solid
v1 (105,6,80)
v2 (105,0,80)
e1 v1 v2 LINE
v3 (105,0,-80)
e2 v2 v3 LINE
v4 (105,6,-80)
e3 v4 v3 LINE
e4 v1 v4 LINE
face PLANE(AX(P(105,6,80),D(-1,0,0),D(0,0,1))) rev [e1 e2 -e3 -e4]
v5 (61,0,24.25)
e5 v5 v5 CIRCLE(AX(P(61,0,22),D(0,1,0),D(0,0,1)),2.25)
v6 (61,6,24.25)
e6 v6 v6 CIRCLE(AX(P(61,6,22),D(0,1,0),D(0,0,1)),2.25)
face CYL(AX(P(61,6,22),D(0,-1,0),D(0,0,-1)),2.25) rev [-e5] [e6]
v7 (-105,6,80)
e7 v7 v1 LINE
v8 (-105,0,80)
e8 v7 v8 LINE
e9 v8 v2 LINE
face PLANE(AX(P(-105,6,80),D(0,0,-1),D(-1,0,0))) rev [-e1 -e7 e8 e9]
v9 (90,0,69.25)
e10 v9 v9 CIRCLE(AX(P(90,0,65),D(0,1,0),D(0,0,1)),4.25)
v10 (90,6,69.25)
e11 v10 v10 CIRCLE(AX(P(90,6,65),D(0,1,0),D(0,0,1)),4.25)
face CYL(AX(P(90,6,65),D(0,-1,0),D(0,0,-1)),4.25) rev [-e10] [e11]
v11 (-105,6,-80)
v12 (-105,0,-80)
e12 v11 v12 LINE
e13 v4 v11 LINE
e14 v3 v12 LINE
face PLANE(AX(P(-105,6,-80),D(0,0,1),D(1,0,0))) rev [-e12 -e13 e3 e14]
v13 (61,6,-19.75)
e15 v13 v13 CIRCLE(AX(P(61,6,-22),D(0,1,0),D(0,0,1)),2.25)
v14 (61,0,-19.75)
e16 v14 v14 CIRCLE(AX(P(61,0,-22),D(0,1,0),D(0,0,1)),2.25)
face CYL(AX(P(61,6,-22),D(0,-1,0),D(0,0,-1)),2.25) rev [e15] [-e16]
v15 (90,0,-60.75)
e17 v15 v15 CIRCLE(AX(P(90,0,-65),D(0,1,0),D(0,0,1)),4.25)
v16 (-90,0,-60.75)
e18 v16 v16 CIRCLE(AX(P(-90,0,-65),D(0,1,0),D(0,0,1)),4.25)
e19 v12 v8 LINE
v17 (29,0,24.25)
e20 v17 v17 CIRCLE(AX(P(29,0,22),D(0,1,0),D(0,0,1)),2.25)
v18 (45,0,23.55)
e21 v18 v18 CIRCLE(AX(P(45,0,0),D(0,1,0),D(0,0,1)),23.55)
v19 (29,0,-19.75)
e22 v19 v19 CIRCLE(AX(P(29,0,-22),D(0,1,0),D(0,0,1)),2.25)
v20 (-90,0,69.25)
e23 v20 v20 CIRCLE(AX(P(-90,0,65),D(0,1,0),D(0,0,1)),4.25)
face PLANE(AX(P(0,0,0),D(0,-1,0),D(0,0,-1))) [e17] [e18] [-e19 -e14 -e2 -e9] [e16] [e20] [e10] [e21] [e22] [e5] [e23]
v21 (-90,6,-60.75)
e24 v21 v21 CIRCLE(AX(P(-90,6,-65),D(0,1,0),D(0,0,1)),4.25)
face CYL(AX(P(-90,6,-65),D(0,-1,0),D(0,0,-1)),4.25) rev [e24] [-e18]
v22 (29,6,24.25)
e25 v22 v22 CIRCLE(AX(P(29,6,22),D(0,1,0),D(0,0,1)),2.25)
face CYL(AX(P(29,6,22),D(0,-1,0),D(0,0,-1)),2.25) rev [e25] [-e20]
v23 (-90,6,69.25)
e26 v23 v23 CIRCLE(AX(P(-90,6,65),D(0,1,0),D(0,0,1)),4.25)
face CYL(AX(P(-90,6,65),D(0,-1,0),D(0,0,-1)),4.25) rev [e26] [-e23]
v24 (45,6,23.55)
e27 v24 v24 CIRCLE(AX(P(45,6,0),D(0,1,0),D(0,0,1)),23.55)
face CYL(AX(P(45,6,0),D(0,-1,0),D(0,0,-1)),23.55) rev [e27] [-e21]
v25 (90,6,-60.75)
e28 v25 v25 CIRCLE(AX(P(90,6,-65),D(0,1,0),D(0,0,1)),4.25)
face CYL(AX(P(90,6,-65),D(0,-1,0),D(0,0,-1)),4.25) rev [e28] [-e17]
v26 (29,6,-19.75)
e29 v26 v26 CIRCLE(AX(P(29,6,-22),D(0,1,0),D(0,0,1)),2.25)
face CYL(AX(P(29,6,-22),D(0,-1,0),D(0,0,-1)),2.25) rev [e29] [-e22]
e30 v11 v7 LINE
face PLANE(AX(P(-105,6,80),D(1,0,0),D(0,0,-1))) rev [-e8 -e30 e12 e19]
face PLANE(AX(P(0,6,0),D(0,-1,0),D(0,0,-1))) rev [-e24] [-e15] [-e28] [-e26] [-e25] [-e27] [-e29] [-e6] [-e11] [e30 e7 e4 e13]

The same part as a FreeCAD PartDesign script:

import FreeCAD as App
import Part
import Sketcher

V = App.Vector


def add_polygon(sketch, points):
    """Adds a closed chain of lines whose ends are joined by coincident constraints."""
    first, n = sketch.GeometryCount, len(points)
    for a, b in zip(points, points[1:] + points[:1]):
        sketch.addGeometry(Part.LineSegment(App.Vector(*a, 0), App.Vector(*b, 0)), False)
    for i in range(n):
        sketch.addConstraint(Sketcher.Constraint("Coincident", first + i, 2, first + (i + 1) % n, 1))

doc = App.newDocument("Part")
body = doc.addObject("PartDesign::Body", "Body")

sketch1 = body.newObject("Sketcher::SketchObject", "Sketch")
sketch1.AttachmentSupport = (doc.getObject("XZ_Plane"), [""])
sketch1.MapMode = "FlatFace"
add_polygon(sketch1, [(-105, -80), (-105, 80), (105, 80), (105, -80)])
sketch1.addGeometry(Part.Circle(V(-90, 65, 0), V(0, 0, 1), 4.2), False)
sketch1.addGeometry(Part.Circle(V(90, 65, 0), V(0, 0, 1), 4.2), False)
sketch1.addGeometry(Part.Circle(V(29, 22, 0), V(0, 0, 1), 2.2), False)
sketch1.addGeometry(Part.Circle(V(61, 22, 0), V(0, 0, 1), 2.2), False)
sketch1.addGeometry(Part.Circle(V(-90, -65, 0), V(0, 0, 1), 4.2), False)
sketch1.addGeometry(Part.Circle(V(45, 0, 0), V(0, 0, 1), 23.6), False)
sketch1.addGeometry(Part.Circle(V(29, -22, 0), V(0, 0, 1), 2.2), False)
sketch1.addGeometry(Part.Circle(V(61, -22, 0), V(0, 0, 1), 2.2), False)
sketch1.addGeometry(Part.Circle(V(90, -65, 0), V(0, 0, 1), 4.2), False)
sketch1.addConstraint([
    Sketcher.Constraint("Vertical", 0),
    Sketcher.Constraint("Horizontal", 1),
    Sketcher.Constraint("Vertical", 2),
    Sketcher.Constraint("Horizontal", 3),
    Sketcher.Constraint("Equal", 4, 5),
    Sketcher.Constraint("Equal", 6, 7),
    Sketcher.Constraint("Equal", 5, 8),
    Sketcher.Constraint("Equal", 7, 10),
    Sketcher.Constraint("Equal", 10, 11),
    Sketcher.Constraint("Equal", 8, 12),
    Sketcher.Constraint("Symmetric", 5, 3, 8, 3, -1, 1),
    Sketcher.Constraint("Symmetric", 4, 3, 12, 3, -1, 1),
    Sketcher.Constraint("Symmetric", 0, 2, 2, 2, -1, 1),
    Sketcher.Constraint("Symmetric", 4, 3, 5, 3, -2),
    Sketcher.Constraint("Symmetric", 6, 3, 10, 3, -1),
    Sketcher.Constraint("Symmetric", 7, 3, 11, 3, -1),
    Sketcher.Constraint("PointOnObject", 9, 3, -1),
    Sketcher.Constraint("Horizontal", 6, 3, 7, 3),
    Sketcher.Constraint("Diameter", 4, 8.5),
    Sketcher.Constraint("Diameter", 6, 4.5),
    Sketcher.Constraint("Diameter", 9, 47.1),
    Sketcher.Constraint("DistanceX", 1, 1, 1, 2, 210.0),
    Sketcher.Constraint("DistanceY", 0, 1, 0, 2, 160.0),
    Sketcher.Constraint("DistanceX", 4, 3, -1, 1, 90.0),
    Sketcher.Constraint("DistanceY", -1, 1, 4, 3, 65.0),
    Sketcher.Constraint("DistanceX", -1, 1, 6, 3, 29.0),
    Sketcher.Constraint("DistanceY", -1, 1, 6, 3, 22.0),
    Sketcher.Constraint("DistanceX", -1, 1, 7, 3, 61.0),
    Sketcher.Constraint("DistanceX", -1, 1, 9, 3, 45.0),
])
pad1 = body.newObject("PartDesign::Pad", "Pad")
pad1.Profile = sketch1
pad1.Length = 6
pad1.Reversed = True

doc.recompute()
